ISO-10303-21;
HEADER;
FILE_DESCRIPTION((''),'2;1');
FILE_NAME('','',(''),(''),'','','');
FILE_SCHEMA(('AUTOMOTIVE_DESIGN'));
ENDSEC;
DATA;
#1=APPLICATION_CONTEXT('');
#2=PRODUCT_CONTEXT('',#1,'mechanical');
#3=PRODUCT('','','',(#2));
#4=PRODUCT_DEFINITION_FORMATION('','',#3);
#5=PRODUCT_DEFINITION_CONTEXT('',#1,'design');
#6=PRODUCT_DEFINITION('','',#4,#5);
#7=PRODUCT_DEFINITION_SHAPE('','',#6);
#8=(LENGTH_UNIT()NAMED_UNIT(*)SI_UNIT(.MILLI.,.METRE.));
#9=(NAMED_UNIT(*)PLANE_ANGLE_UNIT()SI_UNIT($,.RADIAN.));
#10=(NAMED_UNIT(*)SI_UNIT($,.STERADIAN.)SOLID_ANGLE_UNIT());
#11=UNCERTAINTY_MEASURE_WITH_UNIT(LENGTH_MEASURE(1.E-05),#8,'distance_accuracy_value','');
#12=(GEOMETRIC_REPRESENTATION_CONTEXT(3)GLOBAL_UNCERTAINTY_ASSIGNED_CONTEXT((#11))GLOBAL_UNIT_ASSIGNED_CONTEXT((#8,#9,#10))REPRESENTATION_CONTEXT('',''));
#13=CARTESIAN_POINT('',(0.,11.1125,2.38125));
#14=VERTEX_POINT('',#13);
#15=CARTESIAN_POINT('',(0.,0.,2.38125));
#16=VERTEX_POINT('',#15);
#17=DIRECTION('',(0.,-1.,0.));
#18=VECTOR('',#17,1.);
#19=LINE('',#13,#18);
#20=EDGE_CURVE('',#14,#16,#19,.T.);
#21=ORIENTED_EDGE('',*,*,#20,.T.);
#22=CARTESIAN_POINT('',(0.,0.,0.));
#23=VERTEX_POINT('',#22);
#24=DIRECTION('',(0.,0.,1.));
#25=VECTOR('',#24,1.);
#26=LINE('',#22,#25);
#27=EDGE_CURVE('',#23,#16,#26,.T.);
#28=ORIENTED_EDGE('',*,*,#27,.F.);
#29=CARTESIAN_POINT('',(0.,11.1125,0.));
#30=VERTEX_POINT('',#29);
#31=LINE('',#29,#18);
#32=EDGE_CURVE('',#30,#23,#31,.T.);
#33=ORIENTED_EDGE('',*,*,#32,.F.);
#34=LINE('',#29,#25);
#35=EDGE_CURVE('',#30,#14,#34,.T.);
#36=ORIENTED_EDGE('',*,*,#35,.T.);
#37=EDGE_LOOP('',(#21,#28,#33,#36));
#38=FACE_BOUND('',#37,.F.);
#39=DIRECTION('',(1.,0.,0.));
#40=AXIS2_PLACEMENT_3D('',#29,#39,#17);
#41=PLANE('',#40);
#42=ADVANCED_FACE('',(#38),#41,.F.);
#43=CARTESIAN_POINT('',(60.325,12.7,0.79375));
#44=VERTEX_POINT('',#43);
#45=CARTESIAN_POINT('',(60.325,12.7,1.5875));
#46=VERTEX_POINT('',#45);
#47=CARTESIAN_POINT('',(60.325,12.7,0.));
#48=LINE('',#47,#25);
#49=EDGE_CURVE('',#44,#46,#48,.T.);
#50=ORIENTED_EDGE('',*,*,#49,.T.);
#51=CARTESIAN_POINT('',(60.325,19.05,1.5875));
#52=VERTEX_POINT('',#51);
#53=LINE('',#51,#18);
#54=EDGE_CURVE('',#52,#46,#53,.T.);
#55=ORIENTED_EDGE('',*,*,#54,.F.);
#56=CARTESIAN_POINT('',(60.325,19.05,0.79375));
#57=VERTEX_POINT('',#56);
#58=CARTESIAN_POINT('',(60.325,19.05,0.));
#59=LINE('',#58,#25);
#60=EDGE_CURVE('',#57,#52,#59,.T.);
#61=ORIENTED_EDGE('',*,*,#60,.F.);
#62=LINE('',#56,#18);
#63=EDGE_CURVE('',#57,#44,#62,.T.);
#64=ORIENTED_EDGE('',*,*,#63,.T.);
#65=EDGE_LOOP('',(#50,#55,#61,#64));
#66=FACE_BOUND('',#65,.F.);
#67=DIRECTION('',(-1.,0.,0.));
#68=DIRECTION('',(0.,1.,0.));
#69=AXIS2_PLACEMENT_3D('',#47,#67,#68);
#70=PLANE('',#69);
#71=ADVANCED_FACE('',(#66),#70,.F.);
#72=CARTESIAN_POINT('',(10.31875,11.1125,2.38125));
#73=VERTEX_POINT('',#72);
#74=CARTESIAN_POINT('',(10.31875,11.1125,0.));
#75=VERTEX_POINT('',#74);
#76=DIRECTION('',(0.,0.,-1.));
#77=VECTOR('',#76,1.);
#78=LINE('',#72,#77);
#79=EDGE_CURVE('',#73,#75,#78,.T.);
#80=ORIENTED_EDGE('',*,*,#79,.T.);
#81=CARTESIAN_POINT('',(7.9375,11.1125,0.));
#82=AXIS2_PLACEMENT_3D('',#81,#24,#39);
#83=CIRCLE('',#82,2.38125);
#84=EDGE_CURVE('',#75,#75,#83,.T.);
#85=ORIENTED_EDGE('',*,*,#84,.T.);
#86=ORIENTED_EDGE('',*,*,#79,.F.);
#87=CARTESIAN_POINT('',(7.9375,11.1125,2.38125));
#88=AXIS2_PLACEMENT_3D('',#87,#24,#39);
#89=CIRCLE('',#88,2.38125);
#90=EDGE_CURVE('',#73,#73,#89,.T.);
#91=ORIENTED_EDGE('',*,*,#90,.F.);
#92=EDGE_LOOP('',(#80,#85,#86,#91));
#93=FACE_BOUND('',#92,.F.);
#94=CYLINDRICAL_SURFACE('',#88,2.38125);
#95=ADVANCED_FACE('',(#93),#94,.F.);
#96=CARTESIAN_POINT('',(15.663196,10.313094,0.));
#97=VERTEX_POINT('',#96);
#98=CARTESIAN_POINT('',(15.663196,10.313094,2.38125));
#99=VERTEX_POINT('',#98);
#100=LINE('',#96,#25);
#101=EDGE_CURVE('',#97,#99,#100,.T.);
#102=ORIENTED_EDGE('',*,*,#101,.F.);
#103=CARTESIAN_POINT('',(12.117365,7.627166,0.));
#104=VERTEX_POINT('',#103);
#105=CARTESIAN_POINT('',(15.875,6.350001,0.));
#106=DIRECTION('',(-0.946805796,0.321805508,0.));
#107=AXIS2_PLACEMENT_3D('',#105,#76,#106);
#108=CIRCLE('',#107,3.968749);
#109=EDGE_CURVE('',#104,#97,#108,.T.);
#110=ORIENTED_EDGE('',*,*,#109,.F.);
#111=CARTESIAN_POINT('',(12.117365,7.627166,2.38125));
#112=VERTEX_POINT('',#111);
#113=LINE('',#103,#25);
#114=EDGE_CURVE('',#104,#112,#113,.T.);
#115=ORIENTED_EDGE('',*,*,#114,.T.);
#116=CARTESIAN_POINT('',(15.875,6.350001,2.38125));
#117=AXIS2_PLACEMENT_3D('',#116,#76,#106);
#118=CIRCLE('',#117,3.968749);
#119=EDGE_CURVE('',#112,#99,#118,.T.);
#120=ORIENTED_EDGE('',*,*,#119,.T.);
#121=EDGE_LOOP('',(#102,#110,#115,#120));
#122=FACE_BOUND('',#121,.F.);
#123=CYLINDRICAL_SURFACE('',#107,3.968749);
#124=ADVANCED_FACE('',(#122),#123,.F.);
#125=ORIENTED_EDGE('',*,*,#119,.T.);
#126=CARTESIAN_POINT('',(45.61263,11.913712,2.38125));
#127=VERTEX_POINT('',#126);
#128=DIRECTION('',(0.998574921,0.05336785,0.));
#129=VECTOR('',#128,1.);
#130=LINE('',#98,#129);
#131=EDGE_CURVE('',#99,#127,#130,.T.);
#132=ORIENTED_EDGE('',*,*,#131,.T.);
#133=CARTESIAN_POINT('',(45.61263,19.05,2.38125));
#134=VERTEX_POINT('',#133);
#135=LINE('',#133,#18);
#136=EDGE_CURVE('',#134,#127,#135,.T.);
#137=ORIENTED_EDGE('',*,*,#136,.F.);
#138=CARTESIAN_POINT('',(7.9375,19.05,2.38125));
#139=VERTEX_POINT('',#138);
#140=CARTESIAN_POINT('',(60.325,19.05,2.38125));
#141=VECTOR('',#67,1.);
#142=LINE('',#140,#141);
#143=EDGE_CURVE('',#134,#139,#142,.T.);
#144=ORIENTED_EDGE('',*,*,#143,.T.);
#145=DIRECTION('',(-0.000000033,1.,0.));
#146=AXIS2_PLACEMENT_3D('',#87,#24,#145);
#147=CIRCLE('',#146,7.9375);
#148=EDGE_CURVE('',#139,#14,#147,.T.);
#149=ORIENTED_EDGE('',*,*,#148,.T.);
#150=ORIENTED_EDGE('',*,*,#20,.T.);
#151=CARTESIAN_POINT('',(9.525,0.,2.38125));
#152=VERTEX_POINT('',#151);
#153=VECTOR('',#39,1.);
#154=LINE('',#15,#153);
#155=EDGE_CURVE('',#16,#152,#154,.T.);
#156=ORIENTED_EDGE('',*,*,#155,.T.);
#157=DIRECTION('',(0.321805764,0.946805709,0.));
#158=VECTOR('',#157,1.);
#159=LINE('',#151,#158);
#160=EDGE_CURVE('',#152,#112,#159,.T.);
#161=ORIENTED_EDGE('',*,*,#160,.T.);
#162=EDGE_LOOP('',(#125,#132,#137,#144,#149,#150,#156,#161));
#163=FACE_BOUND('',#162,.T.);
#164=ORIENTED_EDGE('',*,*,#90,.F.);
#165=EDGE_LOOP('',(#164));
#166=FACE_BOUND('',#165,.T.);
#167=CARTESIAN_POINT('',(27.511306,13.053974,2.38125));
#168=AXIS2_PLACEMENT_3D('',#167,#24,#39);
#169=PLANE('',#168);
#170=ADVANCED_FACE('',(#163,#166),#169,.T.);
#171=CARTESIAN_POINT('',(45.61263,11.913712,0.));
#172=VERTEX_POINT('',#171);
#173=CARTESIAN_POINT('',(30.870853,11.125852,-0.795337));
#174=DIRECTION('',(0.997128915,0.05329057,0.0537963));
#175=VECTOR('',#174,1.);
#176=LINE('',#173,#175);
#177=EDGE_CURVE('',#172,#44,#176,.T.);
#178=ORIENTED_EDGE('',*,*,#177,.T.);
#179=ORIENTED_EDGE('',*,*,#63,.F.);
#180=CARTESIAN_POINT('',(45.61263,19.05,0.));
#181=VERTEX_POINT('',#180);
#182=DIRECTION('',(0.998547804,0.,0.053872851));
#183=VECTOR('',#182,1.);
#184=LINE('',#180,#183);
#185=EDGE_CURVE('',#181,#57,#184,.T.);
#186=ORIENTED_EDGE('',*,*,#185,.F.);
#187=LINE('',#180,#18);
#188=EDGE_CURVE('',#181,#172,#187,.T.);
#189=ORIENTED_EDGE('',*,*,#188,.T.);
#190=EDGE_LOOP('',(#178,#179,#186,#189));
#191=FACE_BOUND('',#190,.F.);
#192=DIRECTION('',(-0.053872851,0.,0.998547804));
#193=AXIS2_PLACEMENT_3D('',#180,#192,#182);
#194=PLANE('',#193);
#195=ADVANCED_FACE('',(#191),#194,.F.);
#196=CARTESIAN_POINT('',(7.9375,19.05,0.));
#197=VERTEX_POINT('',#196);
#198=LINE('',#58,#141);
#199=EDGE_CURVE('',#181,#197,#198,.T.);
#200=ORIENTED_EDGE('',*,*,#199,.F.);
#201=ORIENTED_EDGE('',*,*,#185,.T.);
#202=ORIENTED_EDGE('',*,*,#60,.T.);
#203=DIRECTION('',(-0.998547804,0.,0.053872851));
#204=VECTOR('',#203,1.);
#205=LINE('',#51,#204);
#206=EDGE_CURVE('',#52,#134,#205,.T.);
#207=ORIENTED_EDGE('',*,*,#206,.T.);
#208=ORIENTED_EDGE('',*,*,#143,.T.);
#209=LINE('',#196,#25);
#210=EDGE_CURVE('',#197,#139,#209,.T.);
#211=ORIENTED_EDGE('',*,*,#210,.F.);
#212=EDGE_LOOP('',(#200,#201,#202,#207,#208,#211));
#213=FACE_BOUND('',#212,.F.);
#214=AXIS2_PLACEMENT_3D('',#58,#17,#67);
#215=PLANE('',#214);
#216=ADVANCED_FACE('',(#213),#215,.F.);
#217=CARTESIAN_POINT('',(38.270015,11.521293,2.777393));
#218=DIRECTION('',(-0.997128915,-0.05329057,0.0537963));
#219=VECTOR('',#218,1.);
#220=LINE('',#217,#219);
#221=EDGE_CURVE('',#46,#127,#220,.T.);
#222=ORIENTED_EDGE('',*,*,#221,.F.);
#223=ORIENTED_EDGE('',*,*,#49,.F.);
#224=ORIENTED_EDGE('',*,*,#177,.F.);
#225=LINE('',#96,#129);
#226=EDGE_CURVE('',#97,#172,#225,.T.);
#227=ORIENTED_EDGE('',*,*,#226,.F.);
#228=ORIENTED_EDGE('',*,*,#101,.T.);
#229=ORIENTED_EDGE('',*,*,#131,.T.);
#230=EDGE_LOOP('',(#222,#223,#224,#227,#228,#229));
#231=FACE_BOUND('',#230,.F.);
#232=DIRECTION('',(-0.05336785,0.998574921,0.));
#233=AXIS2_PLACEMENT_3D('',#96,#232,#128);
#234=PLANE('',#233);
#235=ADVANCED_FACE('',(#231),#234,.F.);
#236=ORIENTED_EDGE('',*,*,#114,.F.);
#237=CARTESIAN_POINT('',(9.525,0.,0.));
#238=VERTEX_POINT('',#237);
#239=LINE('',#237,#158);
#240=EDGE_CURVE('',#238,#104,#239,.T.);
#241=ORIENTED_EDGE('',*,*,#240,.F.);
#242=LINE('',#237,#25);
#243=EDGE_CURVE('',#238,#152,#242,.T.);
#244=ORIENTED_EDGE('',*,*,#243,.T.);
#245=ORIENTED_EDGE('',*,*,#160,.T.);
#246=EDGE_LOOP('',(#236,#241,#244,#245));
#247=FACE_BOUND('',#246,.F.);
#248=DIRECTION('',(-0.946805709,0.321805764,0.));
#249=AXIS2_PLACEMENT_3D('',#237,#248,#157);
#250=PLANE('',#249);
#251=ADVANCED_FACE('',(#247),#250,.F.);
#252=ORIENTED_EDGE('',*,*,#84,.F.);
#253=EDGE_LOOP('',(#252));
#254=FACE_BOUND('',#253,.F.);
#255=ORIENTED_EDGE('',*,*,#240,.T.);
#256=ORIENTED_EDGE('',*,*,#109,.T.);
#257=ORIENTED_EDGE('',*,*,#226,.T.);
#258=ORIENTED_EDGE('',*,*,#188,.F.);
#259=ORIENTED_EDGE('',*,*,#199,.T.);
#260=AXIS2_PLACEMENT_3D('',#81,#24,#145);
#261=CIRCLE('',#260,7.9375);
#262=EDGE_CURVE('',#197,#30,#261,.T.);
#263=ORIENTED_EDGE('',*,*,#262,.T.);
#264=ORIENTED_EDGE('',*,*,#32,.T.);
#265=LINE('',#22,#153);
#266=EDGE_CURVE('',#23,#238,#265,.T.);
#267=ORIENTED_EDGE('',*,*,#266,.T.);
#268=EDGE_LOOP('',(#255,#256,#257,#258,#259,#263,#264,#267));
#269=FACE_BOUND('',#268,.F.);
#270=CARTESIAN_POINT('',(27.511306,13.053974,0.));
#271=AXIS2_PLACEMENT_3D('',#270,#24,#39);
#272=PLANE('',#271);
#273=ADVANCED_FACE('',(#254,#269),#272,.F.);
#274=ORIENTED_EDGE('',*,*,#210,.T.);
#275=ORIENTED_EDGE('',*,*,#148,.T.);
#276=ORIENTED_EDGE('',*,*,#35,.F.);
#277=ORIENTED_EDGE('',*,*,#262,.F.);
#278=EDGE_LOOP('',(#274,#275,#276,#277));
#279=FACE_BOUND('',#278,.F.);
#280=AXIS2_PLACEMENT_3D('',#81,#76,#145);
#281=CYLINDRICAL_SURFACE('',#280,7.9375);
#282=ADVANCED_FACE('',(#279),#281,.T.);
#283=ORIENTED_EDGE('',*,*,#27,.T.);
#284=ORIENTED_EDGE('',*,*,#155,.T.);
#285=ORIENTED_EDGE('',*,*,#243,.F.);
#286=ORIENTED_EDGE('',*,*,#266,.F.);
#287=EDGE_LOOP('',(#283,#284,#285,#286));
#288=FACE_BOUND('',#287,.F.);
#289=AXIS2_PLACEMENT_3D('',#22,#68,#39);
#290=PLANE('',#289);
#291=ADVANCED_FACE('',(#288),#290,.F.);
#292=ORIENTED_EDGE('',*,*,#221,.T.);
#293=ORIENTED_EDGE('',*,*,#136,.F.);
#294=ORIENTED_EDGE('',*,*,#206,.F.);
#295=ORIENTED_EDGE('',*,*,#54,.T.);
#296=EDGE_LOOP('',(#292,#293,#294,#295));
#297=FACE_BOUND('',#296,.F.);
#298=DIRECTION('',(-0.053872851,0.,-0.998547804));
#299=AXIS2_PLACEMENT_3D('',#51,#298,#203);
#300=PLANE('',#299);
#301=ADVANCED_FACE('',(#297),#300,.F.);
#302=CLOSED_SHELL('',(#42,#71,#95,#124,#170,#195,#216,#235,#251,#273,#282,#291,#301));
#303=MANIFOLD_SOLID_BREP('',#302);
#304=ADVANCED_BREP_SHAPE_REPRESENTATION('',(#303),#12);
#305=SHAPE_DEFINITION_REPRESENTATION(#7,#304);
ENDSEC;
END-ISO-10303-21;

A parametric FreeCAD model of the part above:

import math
import FreeCAD as App
import Part
import Sketcher

V = App.Vector
Q = App.Units.Quantity


def add_polygon(sketch, points):
    """Adds a closed chain of lines whose ends are joined by coincident constraints."""
    first, n = sketch.GeometryCount, len(points)
    for a, b in zip(points, points[1:] + points[:1]):
        sketch.addGeometry(Part.LineSegment(App.Vector(*a, 0), App.Vector(*b, 0)), False)
    for i in range(n):
        sketch.addConstraint(Sketcher.Constraint("Coincident", first + i, 2, first + (i + 1) % n, 1))

doc = App.newDocument("Part")
body = doc.addObject("PartDesign::Body", "Body")

# Sketch on XY plane
sketch1 = doc.addObject("Sketcher::SketchObject", "Sketch")
body.addObject(sketch1)
sketch1.AttachmentSupport = (doc.XY_Plane, [""])
sketch1.MapMode = "FlatFace"
sketch1.addGeometry([
    Part.LineSegment(V(60.3, 19.1, 0), V(7.9, 19.1, 0)),  # 0
    Part.ArcOfCircle(Part.Circle(V(7.9, 11.1, 0), V(0, 0, 1), 7.9), math.radians(90), math.radians(180)),  # 1
    Part.LineSegment(V(0, 11.1, 0), V(0, 0, 0)),  # 2
    Part.LineSegment(V(0, 0, 0), V(9.5, 0, 0)),  # 3
    Part.LineSegment(V(9.5, 0, 0), V(12.1, 7.6, 0)),  # 4
    Part.ArcOfCircle(Part.Circle(V(15.9, 6.4, 0), V(0, 0, 1), 4), math.radians(93), math.radians(161)),  # 5
    Part.LineSegment(V(15.7, 10.3, 0), V(60.3, 12.7, 0)),  # 6
    Part.LineSegment(V(60.3, 12.7, 0), V(60.3, 19.1, 0)),  # 7
], False)
sketch1.addConstraint([
    Sketcher.Constraint("Tangent", 0, 2, 1, 1),
    Sketcher.Constraint("Tangent", 1, 2, 2, 1),
    Sketcher.Constraint("Coincident", 2, 2, 3, 1),
    Sketcher.Constraint("Coincident", 3, 2, 4, 1),
    Sketcher.Constraint("Tangent", 4, 2, 5, 2),
    Sketcher.Constraint("Tangent", 5, 1, 6, 1),
    Sketcher.Constraint("Coincident", 6, 2, 7, 1),
    Sketcher.Constraint("Coincident", 7, 2, 0, 1),
    Sketcher.Constraint("Horizontal", 0),
    Sketcher.Constraint("Vertical", 2),
    Sketcher.Constraint("Horizontal", 3),
    Sketcher.Constraint("Vertical", 7),
    Sketcher.Constraint("Coincident", 2, 2, -1, 1),
    Sketcher.Constraint("Radius", 1, Q("0.3125 in")),
    Sketcher.Constraint("Radius", 5, Q("0.15625 in")),
    Sketcher.Constraint("DistanceX", 3, 2, 6, 2, Q("2 in")),
    Sketcher.Constraint("DistanceY", 7, 1, 7, 2, Q("0.25 in")),
    Sketcher.Constraint("DistanceY", -1, 1, 6, 2, Q("0.5 in")),
    Sketcher.Constraint("DistanceY", 5, 3, 0, 2, Q("0.5 in")),
    Sketcher.Constraint("DistanceX", 0, 2, 0, 1, Q("2.0625 in")),
    Sketcher.Constraint("DistanceX", 3, 2, 5, 3, Q("0.25 in")),
])
pad1 = doc.addObject("PartDesign::Pad", "Pad")
body.addObject(pad1)
pad1.Profile = sketch1
pad1.Length = Q("0.09375 in")

# Sketch on XY plane
sketch2 = doc.addObject("Sketcher::SketchObject", "Sketch001")
body.addObject(sketch2)
sketch2.AttachmentSupport = (doc.XY_Plane, [""])
sketch2.MapMode = "FlatFace"
sketch2.AttachmentOffset = App.Placement(V(0, 0, 0.09375 * 25.4), App.Rotation())
sketch2.addGeometry(Part.Circle(V(7.9, 11.1, 0), V(0, 0, 1), 2.4), False)
sketch2.addConstraint([
    Sketcher.Constraint("Diameter", 0, Q("0.1875 in")),
    Sketcher.Constraint("DistanceX", -1, 1, 0, 3, Q("0.3125 in")),
    Sketcher.Constraint("DistanceY", -1, 1, 0, 3, Q("0.4375 in")),
])
pocket1 = doc.addObject("PartDesign::Pocket", "Pocket")
body.addObject(pocket1)
pocket1.Profile = sketch2
pocket1.Type = "ThroughAll"

# Sketch on XZ plane
sketch3 = doc.addObject("Sketcher::SketchObject", "Sketch002")
body.addObject(sketch3)
sketch3.AttachmentSupport = (doc.XZ_Plane, [""])
sketch3.MapMode = "FlatFace"
sketch3.AttachmentOffset = App.Placement(V(0, 0, -0.75 * 25.4), App.Rotation())
add_polygon(sketch3, [(45.6, 0), (60.3, 0.8), (60.3, 0)])  # lines 0-2
add_polygon(sketch3, [(45.6, 2.4), (60.3, 2.4), (60.3, 1.6)])  # lines 3-5
sketch3.addConstraint([
    Sketcher.Constraint("Vertical", 1),
    Sketcher.Constraint("Horizontal", 2),
    Sketcher.Constraint("Horizontal", 3),
    Sketcher.Constraint("Vertical", 4),
    Sketcher.Constraint("PointOnObject", 1, 2, -1),
    Sketcher.Constraint("Vertical", 1, 2, 3, 2),
    Sketcher.Constraint("Vertical", 2, 2, 5, 2),
    Sketcher.Constraint("Equal", 1, 4),
    Sketcher.Constraint("DistanceY", 1, 2, 1, 1, Q("0.03125 in")),
    Sketcher.Constraint("DistanceX", -1, 1, 0, 2, Q("2.375 in")),
    Sketcher.Constraint("DistanceY", -1, 1, 3, 2, Q("0.09375 in")),
    Sketcher.Constraint("DistanceX", 2, 2, 2, 1, 14.71237),
])
pocket2 = doc.addObject("PartDesign::Pocket", "Pocket001")
body.addObject(pocket2)
pocket2.Profile = sketch3
pocket2.Length = Q("1 in")
pocket2.Reversed = True

doc.recompute()
